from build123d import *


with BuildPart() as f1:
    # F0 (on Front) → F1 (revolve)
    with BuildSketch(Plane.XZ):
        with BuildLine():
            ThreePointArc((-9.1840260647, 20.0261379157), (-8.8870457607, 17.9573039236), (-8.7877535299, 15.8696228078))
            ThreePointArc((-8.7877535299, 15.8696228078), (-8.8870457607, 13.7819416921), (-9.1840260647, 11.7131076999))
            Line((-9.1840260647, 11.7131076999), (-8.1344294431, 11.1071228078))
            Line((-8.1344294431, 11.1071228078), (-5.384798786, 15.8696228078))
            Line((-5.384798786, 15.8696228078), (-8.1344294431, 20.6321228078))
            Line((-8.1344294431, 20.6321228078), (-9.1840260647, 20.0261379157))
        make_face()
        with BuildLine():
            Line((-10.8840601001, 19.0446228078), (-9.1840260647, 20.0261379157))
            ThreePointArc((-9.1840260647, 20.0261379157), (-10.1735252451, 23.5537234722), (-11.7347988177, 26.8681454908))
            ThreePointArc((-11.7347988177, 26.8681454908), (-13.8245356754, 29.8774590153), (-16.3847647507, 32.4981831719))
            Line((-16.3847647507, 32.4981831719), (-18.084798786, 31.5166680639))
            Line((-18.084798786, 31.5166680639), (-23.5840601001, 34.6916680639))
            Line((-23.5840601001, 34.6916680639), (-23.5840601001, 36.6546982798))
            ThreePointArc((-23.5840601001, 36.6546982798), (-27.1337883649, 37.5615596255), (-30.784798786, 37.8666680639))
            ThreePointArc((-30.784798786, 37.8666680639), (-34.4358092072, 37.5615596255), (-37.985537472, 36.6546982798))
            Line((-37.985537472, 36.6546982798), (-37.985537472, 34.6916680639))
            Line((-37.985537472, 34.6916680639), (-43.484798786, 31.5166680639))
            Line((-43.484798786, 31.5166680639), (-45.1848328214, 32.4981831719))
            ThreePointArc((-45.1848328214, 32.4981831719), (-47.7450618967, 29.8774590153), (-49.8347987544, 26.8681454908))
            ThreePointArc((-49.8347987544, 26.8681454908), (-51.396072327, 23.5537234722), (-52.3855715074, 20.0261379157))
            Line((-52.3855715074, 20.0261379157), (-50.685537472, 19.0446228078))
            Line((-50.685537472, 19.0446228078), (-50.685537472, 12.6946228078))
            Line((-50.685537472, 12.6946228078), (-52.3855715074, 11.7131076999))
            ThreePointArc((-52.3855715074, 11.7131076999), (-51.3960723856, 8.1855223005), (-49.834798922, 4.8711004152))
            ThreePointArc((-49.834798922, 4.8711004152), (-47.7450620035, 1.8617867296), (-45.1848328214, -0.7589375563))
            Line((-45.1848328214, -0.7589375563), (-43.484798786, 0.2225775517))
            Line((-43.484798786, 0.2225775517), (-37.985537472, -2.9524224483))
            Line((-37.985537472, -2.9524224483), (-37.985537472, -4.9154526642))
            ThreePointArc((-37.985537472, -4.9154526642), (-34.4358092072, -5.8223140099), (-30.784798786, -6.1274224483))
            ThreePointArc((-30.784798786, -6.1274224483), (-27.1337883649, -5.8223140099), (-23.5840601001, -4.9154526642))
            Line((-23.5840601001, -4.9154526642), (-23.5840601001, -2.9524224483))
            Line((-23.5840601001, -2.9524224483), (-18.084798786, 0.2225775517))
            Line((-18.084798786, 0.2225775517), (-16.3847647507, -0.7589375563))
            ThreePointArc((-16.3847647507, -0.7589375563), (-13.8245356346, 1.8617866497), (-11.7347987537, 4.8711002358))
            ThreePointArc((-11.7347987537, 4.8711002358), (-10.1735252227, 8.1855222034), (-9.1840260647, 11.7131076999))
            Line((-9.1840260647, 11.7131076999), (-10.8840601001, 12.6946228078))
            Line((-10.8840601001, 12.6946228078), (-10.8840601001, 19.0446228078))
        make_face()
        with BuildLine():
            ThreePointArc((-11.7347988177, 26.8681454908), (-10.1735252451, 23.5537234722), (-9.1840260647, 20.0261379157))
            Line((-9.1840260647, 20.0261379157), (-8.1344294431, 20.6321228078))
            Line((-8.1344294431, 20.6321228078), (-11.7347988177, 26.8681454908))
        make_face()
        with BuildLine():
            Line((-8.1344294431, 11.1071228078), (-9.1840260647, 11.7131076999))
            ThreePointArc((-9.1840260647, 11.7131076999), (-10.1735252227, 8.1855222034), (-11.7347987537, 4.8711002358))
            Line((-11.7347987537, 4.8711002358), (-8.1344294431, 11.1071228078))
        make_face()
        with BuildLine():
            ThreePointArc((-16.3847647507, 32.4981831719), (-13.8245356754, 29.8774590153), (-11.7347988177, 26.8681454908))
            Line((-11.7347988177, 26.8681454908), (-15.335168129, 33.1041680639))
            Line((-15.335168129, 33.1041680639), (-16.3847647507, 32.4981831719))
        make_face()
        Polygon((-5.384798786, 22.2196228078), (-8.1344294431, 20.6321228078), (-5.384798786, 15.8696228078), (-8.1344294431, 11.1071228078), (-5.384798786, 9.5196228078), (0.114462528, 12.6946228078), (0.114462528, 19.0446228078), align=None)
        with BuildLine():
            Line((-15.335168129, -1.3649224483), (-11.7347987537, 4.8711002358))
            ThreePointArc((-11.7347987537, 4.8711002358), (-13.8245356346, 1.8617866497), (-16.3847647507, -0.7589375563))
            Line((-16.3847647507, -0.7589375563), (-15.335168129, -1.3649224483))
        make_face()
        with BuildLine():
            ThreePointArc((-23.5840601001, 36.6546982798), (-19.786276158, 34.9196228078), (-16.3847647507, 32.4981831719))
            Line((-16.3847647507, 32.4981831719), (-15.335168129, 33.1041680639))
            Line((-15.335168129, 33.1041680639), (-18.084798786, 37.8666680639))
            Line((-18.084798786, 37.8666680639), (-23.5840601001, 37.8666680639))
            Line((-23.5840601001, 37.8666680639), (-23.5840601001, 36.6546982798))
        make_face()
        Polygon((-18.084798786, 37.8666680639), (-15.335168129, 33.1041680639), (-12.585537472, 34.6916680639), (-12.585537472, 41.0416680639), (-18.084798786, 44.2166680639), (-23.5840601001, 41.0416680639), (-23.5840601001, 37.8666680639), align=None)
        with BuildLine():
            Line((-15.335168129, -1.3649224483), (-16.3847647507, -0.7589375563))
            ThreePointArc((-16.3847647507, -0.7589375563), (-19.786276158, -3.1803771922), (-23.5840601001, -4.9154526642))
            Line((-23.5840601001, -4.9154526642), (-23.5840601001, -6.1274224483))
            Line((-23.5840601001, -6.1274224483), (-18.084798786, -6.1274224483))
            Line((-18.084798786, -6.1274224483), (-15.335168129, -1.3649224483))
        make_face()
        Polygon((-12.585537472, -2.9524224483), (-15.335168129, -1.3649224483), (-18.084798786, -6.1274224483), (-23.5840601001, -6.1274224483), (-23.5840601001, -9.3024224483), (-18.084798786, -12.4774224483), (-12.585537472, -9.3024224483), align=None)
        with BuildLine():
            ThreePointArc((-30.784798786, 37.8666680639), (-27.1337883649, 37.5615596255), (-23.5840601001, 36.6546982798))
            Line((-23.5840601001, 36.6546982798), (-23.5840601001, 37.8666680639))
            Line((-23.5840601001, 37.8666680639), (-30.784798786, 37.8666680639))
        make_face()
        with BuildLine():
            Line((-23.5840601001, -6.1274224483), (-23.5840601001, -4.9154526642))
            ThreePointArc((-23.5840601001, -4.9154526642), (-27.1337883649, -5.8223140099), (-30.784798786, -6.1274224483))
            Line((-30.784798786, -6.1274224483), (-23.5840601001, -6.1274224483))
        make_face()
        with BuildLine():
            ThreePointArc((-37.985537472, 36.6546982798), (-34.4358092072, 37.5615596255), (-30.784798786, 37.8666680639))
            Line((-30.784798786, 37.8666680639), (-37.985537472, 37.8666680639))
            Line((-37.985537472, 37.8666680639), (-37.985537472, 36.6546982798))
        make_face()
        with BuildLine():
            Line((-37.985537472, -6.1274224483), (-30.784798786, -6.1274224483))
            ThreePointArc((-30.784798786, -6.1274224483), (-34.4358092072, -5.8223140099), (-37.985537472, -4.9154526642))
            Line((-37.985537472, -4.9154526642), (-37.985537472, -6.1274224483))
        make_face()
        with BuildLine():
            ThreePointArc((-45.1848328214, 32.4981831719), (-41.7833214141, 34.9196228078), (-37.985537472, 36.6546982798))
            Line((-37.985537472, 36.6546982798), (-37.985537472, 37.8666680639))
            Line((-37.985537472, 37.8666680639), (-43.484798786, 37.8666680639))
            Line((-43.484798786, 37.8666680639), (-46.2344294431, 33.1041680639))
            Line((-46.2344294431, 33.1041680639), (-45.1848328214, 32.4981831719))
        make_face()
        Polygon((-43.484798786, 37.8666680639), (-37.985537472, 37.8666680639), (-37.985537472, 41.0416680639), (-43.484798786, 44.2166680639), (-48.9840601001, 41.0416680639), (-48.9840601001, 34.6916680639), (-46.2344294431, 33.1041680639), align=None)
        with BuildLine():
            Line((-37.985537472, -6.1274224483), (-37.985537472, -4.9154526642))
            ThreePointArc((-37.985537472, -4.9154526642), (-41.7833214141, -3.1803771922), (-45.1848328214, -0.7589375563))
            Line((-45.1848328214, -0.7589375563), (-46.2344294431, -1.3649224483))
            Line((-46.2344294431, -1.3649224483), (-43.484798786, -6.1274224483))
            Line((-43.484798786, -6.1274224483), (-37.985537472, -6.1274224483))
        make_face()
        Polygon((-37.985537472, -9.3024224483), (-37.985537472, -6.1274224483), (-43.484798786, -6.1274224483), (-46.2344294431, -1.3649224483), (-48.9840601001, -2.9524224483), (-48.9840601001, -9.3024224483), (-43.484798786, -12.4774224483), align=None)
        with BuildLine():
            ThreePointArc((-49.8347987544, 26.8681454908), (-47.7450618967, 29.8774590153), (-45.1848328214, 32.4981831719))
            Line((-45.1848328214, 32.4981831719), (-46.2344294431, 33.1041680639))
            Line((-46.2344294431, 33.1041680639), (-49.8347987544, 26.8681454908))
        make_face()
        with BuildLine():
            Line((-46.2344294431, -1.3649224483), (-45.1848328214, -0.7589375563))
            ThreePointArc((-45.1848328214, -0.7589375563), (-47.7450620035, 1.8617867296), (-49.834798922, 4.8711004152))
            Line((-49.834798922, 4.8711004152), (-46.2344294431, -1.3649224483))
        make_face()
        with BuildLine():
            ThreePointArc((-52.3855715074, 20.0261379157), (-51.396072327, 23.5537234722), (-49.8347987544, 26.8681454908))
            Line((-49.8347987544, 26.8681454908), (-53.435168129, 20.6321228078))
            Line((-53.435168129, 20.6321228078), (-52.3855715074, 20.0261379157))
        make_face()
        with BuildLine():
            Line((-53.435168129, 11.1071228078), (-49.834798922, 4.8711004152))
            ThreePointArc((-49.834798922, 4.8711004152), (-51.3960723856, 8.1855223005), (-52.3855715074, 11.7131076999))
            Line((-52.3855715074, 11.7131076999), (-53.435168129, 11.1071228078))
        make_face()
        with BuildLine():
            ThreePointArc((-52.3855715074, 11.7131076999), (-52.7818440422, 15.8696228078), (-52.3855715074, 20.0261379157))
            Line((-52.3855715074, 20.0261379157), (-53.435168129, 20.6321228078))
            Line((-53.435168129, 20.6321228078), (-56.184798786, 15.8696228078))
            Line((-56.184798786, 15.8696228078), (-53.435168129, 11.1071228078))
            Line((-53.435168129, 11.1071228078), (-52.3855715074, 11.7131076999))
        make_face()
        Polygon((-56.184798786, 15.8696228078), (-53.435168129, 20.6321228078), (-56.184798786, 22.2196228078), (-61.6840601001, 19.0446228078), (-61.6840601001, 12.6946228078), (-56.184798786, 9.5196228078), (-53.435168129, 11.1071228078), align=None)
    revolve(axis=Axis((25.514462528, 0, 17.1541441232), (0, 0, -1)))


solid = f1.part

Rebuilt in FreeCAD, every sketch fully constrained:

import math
import FreeCAD as App
import Part
import Sketcher
from FreeCAD import Vector
Q = App.Units.Quantity

doc = App.newDocument("Part")
body = doc.addObject("PartDesign::Body", "Body")

# Sketch on XZ plane
sketch1 = body.newObject("Sketcher::SketchObject", "Sketch")
sketch1.AttachmentSupport = (doc.getObject("XZ_Plane"), [""])
sketch1.MapMode = "FlatFace"
sketch1.addGeometry([
    Part.LineSegment(Vector(-49.834799, 4.8711, 0), Vector(-46.234429, -1.364922, 0)),  # 0
    Part.LineSegment(Vector(-46.234429, -1.364922, 0), Vector(-48.98406, -2.952422, 0)),  # 1
    Part.LineSegment(Vector(-48.98406, -2.952422, 0), Vector(-48.98406, -9.302422, 0)),  # 2
    Part.LineSegment(Vector(-48.98406, -9.302422, 0), Vector(-43.484799, -12.477422, 0)),  # 3
    Part.LineSegment(Vector(-43.484799, -12.477422, 0), Vector(-37.985537, -9.302422, 0)),  # 4
    Part.LineSegment(Vector(-37.985537, -9.302422, 0), Vector(-37.985537, -6.127422, 0)),  # 5
    Part.LineSegment(Vector(-37.985537, -6.127422, 0), Vector(-23.58406, -6.127422, 0)),  # 6
    Part.LineSegment(Vector(-23.58406, -6.127422, 0), Vector(-23.58406, -9.302422, 0)),  # 7
    Part.LineSegment(Vector(-23.58406, -9.302422, 0), Vector(-18.084799, -12.477422, 0)),  # 8
    Part.LineSegment(Vector(-18.084799, -12.477422, 0), Vector(-12.585537, -9.302422, 0)),  # 9
    Part.LineSegment(Vector(-12.585537, -9.302422, 0), Vector(-12.585537, -2.952422, 0)),  # 10
    Part.LineSegment(Vector(-12.585537, -2.952422, 0), Vector(-15.335168, -1.364922, 0)),  # 11
    Part.LineSegment(Vector(-15.335168, -1.364922, 0), Vector(-11.734799, 4.8711, 0)),  # 12
    Part.LineSegment(Vector(-11.734799, 4.8711, 0), Vector(-8.134429, 11.107123, 0)),  # 13
    Part.LineSegment(Vector(-8.134429, 11.107123, 0), Vector(-5.384799, 9.519623, 0)),  # 14
    Part.LineSegment(Vector(-5.384799, 9.519623, 0), Vector(0.114463, 12.694623, 0)),  # 15
    Part.LineSegment(Vector(0.114463, 12.694623, 0), Vector(0.114463, 19.044623, 0)),  # 16
    Part.LineSegment(Vector(0.114463, 19.044623, 0), Vector(-5.384799, 22.219623, 0)),  # 17
    Part.LineSegment(Vector(-5.384799, 22.219623, 0), Vector(-8.134429, 20.632123, 0)),  # 18
    Part.LineSegment(Vector(-8.134429, 20.632123, 0), Vector(-11.734799, 26.868145, 0)),  # 19
    Part.LineSegment(Vector(-11.734799, 26.868145, 0), Vector(-15.335168, 33.104168, 0)),  # 20
    Part.LineSegment(Vector(-15.335168, 33.104168, 0), Vector(-12.585537, 34.691668, 0)),  # 21
    Part.LineSegment(Vector(-12.585537, 34.691668, 0), Vector(-12.585537, 41.041668, 0)),  # 22
    Part.LineSegment(Vector(-12.585537, 41.041668, 0), Vector(-18.084799, 44.216668, 0)),  # 23
    Part.LineSegment(Vector(-18.084799, 44.216668, 0), Vector(-23.58406, 41.041668, 0)),  # 24
    Part.LineSegment(Vector(-23.58406, 41.041668, 0), Vector(-23.58406, 37.866668, 0)),  # 25
    Part.LineSegment(Vector(-23.58406, 37.866668, 0), Vector(-37.985537, 37.866668, 0)),  # 26
    Part.LineSegment(Vector(-37.985537, 37.866668, 0), Vector(-37.985537, 41.041668, 0)),  # 27
    Part.LineSegment(Vector(-37.985537, 41.041668, 0), Vector(-43.484799, 44.216668, 0)),  # 28
    Part.LineSegment(Vector(-43.484799, 44.216668, 0), Vector(-48.98406, 41.041668, 0)),  # 29
    Part.LineSegment(Vector(-48.98406, 41.041668, 0), Vector(-48.98406, 34.691668, 0)),  # 30
    Part.LineSegment(Vector(-48.98406, 34.691668, 0), Vector(-46.234429, 33.104168, 0)),  # 31
    Part.LineSegment(Vector(-46.234429, 33.104168, 0), Vector(-49.834799, 26.868145, 0)),  # 32
    Part.LineSegment(Vector(-49.834799, 26.868145, 0), Vector(-53.435168, 20.632123, 0)),  # 33
    Part.LineSegment(Vector(-53.435168, 20.632123, 0), Vector(-56.184799, 22.219623, 0)),  # 34
    Part.LineSegment(Vector(-56.184799, 22.219623, 0), Vector(-61.68406, 19.044623, 0)),  # 35
    Part.LineSegment(Vector(-61.68406, 19.044623, 0), Vector(-61.68406, 12.694623, 0)),  # 36
    Part.LineSegment(Vector(-61.68406, 12.694623, 0), Vector(-56.184799, 9.519623, 0)),  # 37
    Part.LineSegment(Vector(-56.184799, 9.519623, 0), Vector(-53.435168, 11.107123, 0)),  # 38
    Part.LineSegment(Vector(-53.435168, 11.107123, 0), Vector(-49.834799, 4.8711, 0)),  # 39
    Part.LineSegment(Vector(-52.385572, 20.026138, 0), Vector(-50.685537, 19.044623, 0)),  # 40
    Part.LineSegment(Vector(-50.685537, 19.044623, 0), Vector(-50.685537, 12.694623, 0)),  # 41
    Part.LineSegment(Vector(-50.685537, 12.694623, 0), Vector(-52.385572, 11.713108, 0)),  # 42
    Part.ArcOfCircle(Part.Circle(Vector(-30.784799, 15.869623, 0), Vector(0, 0, 1), 21.997045), math.radians(169.108026), math.radians(190.891974)),  # 43
    Part.ArcOfCircle(Part.Circle(Vector(-30.784799, 15.869623, 0), Vector(0, 0, 1), 21.997045), math.radians(-130.891974), math.radians(-109.108026)),  # 44
    Part.LineSegment(Vector(-45.184833, -0.758938, 0), Vector(-43.484799, 0.222578, 0)),  # 45
    Part.LineSegment(Vector(-43.484799, 0.222578, 0), Vector(-37.985537, -2.952422, 0)),  # 46
    Part.LineSegment(Vector(-37.985537, -2.952422, 0), Vector(-37.985537, -4.915453, 0)),  # 47
    Part.ArcOfCircle(Part.Circle(Vector(-30.784799, 15.869623, 0), Vector(0, 0, 1), 21.997045), math.radians(-70.891974), math.radians(-49.108026)),  # 48
    Part.LineSegment(Vector(-23.58406, -4.915453, 0), Vector(-23.58406, -2.952422, 0)),  # 49
    Part.LineSegment(Vector(-23.58406, -2.952422, 0), Vector(-18.084799, 0.222578, 0)),  # 50
    Part.LineSegment(Vector(-18.084799, 0.222578, 0), Vector(-16.384765, -0.758938, 0)),  # 51
    Part.LineSegment(Vector(-43.484799, 31.516668, 0), Vector(-45.184833, 32.498183, 0)),  # 52
    Part.ArcOfCircle(Part.Circle(Vector(-30.784799, 15.869623, 0), Vector(0, 0, 1), 21.997045), math.radians(109.108026), math.radians(130.891974)),  # 53
    Part.LineSegment(Vector(-37.985537, 36.654698, 0), Vector(-37.985537, 34.691668, 0)),  # 54
    Part.LineSegment(Vector(-37.985537, 34.691668, 0), Vector(-43.484799, 31.516668, 0)),  # 55
    Part.ArcOfCircle(Part.Circle(Vector(-30.784799, 15.869623, 0), Vector(0, 0, 1), 21.997045), math.radians(-10.891974), math.radians(0)),  # 56
    Part.LineSegment(Vector(-9.184026, 11.713108, 0), Vector(-10.88406, 12.694623, 0)),  # 57
    Part.LineSegment(Vector(-10.88406, 12.694623, 0), Vector(-10.88406, 19.044623, 0)),  # 58
    Part.LineSegment(Vector(-10.88406, 19.044623, 0), Vector(-9.184026, 20.026138, 0)),  # 59
    Part.ArcOfCircle(Part.Circle(Vector(-30.784799, 15.869623, 0), Vector(0, 0, 1), 21.997045), math.radians(0), math.radians(10.891974)),  # 60
    Part.LineSegment(Vector(-23.58406, 34.691668, 0), Vector(-23.58406, 36.654698, 0)),  # 61
    Part.ArcOfCircle(Part.Circle(Vector(-30.784799, 15.869623, 0), Vector(0, 0, 1), 21.997045), math.radians(49.108026), math.radians(70.891974)),  # 62
    Part.LineSegment(Vector(-16.384765, 32.498183, 0), Vector(-18.084799, 31.516668, 0)),  # 63
    Part.LineSegment(Vector(-18.084799, 31.516668, 0), Vector(-23.58406, 34.691668, 0)),  # 64
], False)
sketch1.addGeometry(Part.LineSegment(Vector(25.514463, 44.216668, 0), Vector(25.514463, -12.477422, 0)), True)  # axis
sketch1.addConstraint([
    Sketcher.Constraint("Coincident", 0, 2, 1, 1),
    Sketcher.Constraint("Coincident", 1, 2, 2, 1),
    Sketcher.Constraint("Coincident", 2, 2, 3, 1),
    Sketcher.Constraint("Coincident", 3, 2, 4, 1),
    Sketcher.Constraint("Coincident", 4, 2, 5, 1),
    Sketcher.Constraint("Coincident", 5, 2, 6, 1),
    Sketcher.Constraint("Coincident", 6, 2, 7, 1),
    Sketcher.Constraint("Coincident", 7, 2, 8, 1),
    Sketcher.Constraint("Coincident", 8, 2, 9, 1),
    Sketcher.Constraint("Coincident", 9, 2, 10, 1),
    Sketcher.Constraint("Coincident", 10, 2, 11, 1),
    Sketcher.Constraint("Coincident", 11, 2, 12, 1),
    Sketcher.Constraint("Coincident", 12, 2, 13, 1),
    Sketcher.Constraint("Coincident", 13, 2, 14, 1),
    Sketcher.Constraint("Coincident", 14, 2, 15, 1),
    Sketcher.Constraint("Coincident", 15, 2, 16, 1),
    Sketcher.Constraint("Coincident", 16, 2, 17, 1),
    Sketcher.Constraint("Coincident", 17, 2, 18, 1),
    Sketcher.Constraint("Coincident", 18, 2, 19, 1),
    Sketcher.Constraint("Coincident", 19, 2, 20, 1),
    Sketcher.Constraint("Coincident", 20, 2, 21, 1),
    Sketcher.Constraint("Coincident", 21, 2, 22, 1),
    Sketcher.Constraint("Coincident", 22, 2, 23, 1),
    Sketcher.Constraint("Coincident", 23, 2, 24, 1),
    Sketcher.Constraint("Coincident", 24, 2, 25, 1),
    Sketcher.Constraint("Coincident", 25, 2, 26, 1),
    Sketcher.Constraint("Coincident", 26, 2, 27, 1),
    Sketcher.Constraint("Coincident", 27, 2, 28, 1),
    Sketcher.Constraint("Coincident", 28, 2, 29, 1),
    Sketcher.Constraint("Coincident", 29, 2, 30, 1),
    Sketcher.Constraint("Coincident", 30, 2, 31, 1),
    Sketcher.Constraint("Coincident", 31, 2, 32, 1),
    Sketcher.Constraint("Coincident", 32, 2, 33, 1),
    Sketcher.Constraint("Coincident", 33, 2, 34, 1),
    Sketcher.Constraint("Coincident", 34, 2, 35, 1),
    Sketcher.Constraint("Coincident", 35, 2, 36, 1),
    Sketcher.Constraint("Coincident", 36, 2, 37, 1),
    Sketcher.Constraint("Coincident", 37, 2, 38, 1),
    Sketcher.Constraint("Coincident", 38, 2, 39, 1),
    Sketcher.Constraint("Coincident", 39, 2, 0, 1),
    Sketcher.Constraint("Coincident", 40, 2, 41, 1),
    Sketcher.Constraint("Coincident", 41, 2, 42, 1),
    Sketcher.Constraint("Coincident", 42, 2, 43, 2),
    Sketcher.Constraint("Coincident", 43, 1, 40, 1),
    Sketcher.Constraint("Coincident", 44, 1, 45, 1),
    Sketcher.Constraint("Coincident", 45, 2, 46, 1),
    Sketcher.Constraint("Coincident", 46, 2, 47, 1),
    Sketcher.Constraint("Coincident", 47, 2, 44, 2),
    Sketcher.Constraint("Coincident", 48, 1, 49, 1),
    Sketcher.Constraint("Coincident", 49, 2, 50, 1),
    Sketcher.Constraint("Coincident", 50, 2, 51, 1),
    Sketcher.Constraint("Coincident", 51, 2, 48, 2),
    Sketcher.Constraint("Coincident", 52, 2, 53, 2),
    Sketcher.Constraint("Coincident", 53, 1, 54, 1),
    Sketcher.Constraint("Coincident", 54, 2, 55, 1),
    Sketcher.Constraint("Coincident", 55, 2, 52, 1),
    Sketcher.Constraint("Coincident", 56, 1, 57, 1),
    Sketcher.Constraint("Coincident", 57, 2, 58, 1),
    Sketcher.Constraint("Coincident", 58, 2, 59, 1),
    Sketcher.Constraint("Coincident", 59, 2, 60, 2),
    Sketcher.Constraint("Tangent", 60, 1, 56, 2),
    Sketcher.Constraint("Coincident", 61, 2, 62, 2),
    Sketcher.Constraint("Coincident", 62, 1, 63, 1),
    Sketcher.Constraint("Coincident", 63, 2, 64, 1),
    Sketcher.Constraint("Coincident", 64, 2, 61, 1),
    Sketcher.Constraint("Vertical", 2),
    Sketcher.Constraint("Vertical", 5),
    Sketcher.Constraint("Horizontal", 6),
    Sketcher.Constraint("Vertical", 7),
    Sketcher.Constraint("Vertical", 10),
    Sketcher.Constraint("Vertical", 16),
    Sketcher.Constraint("Vertical", 22),
    Sketcher.Constraint("Vertical", 25),
    Sketcher.Constraint("Horizontal", 26),
    Sketcher.Constraint("Vertical", 27),
    Sketcher.Constraint("Vertical", 30),
    Sketcher.Constraint("Vertical", 36),
    Sketcher.Constraint("Vertical", 41),
    Sketcher.Constraint("Vertical", 47),
    Sketcher.Constraint("Vertical", 49),
    Sketcher.Constraint("Vertical", 54),
    Sketcher.Constraint("Vertical", 58),
    Sketcher.Constraint("Vertical", 61),
    Sketcher.Constraint("Vertical", 65),
    Sketcher.Constraint("Coincident", 44, 3, 43, 3),
    Sketcher.Constraint("Coincident", 48, 3, 43, 3),
    Sketcher.Constraint("Coincident", 53, 3, 43, 3),
    Sketcher.Constraint("Coincident", 56, 3, 43, 3),
    Sketcher.Constraint("Coincident", 62, 3, 43, 3),
    Sketcher.Constraint("Equal", 43, 44),
    Sketcher.Constraint("Equal", 44, 48),
    Sketcher.Constraint("Equal", 48, 53),
    Sketcher.Constraint("Equal", 53, 56),
    Sketcher.Constraint("Equal", 56, 60),
    Sketcher.Constraint("Equal", 60, 62),
    Sketcher.Constraint("Perpendicular", 0, 1),
    Sketcher.Constraint("Parallel", 1, 4),
    Sketcher.Constraint("Parallel", 3, 8),
    Sketcher.Constraint("Parallel", 4, 9),
    Sketcher.Constraint("Parallel", 8, 11),
    Sketcher.Constraint("Perpendicular", 11, 12),
    Sketcher.Constraint("Parallel", 12, 13),
    Sketcher.Constraint("Perpendicular", 13, 14),
    Sketcher.Constraint("Parallel", 9, 15),
    Sketcher.Constraint("Parallel", 14, 17),
    Sketcher.Constraint("Parallel", 15, 18),
    Sketcher.Constraint("Perpendicular", 18, 19),
    Sketcher.Constraint("Parallel", 19, 20),
    Sketcher.Constraint("Perpendicular", 20, 21),
    Sketcher.Constraint("Parallel", 17, 23),
    Sketcher.Constraint("Parallel", 21, 24),
    Sketcher.Constraint("Parallel", 23, 28),
    Sketcher.Constraint("Parallel", 24, 29),
    Sketcher.Constraint("Parallel", 28, 31),
    Sketcher.Constraint("Perpendicular", 31, 32),
    Sketcher.Constraint("Parallel", 32, 33),
    Sketcher.Constraint("Perpendicular", 33, 34),
    Sketcher.Constraint("Parallel", 29, 35),
    Sketcher.Constraint("Parallel", 34, 37),
    Sketcher.Constraint("Parallel", 35, 38),
    Sketcher.Constraint("Perpendicular", 38, 39),
    Sketcher.Constraint("Parallel", 37, 40),
    Sketcher.Constraint("Perpendicular", 39, 42),
    Sketcher.Constraint("Parallel", 42, 45),
    Sketcher.Constraint("Parallel", 40, 46),
    Sketcher.Constraint("Parallel", 45, 50),
    Sketcher.Constraint("Parallel", 46, 51),
    Sketcher.Constraint("Parallel", 51, 52),
    Sketcher.Constraint("Parallel", 50, 55),
    Sketcher.Constraint("Parallel", 52, 57),
    Sketcher.Constraint("Parallel", 55, 59),
    Sketcher.Constraint("Parallel", 59, 63),
    Sketcher.Constraint("Parallel", 57, 64),
    Sketcher.Constraint("Horizontal", 2, 2, 4, 2),
    Sketcher.Constraint("Horizontal", 4, 2, 7, 2),
    Sketcher.Constraint("Horizontal", 3, 2, 8, 2),
    Sketcher.Constraint("Horizontal", 7, 2, 9, 2),
    Sketcher.Constraint("Horizontal", 1, 2, 10, 2),
    Sketcher.Constraint("Horizontal", 0, 2, 11, 2),
    Sketcher.Constraint("Horizontal", 22, 2, 24, 2),
    Sketcher.Constraint("Horizontal", 24, 2, 27, 2),
    Sketcher.Constraint("Horizontal", 23, 2, 28, 2),
    Sketcher.Constraint("Horizontal", 27, 2, 29, 2),
    Sketcher.Constraint("Horizontal", 21, 2, 30, 2),
    Sketcher.Constraint("Horizontal", 20, 2, 31, 2),
    Sketcher.Constraint("Horizontal", 19, 2, 32, 2),
    Sketcher.Constraint("Horizontal", 18, 2, 33, 2),
    Sketcher.Constraint("Horizontal", 17, 2, 34, 2),
    Sketcher.Constraint("Horizontal", 16, 2, 35, 2),
    Sketcher.Constraint("Horizontal", 15, 2, 36, 2),
    Sketcher.Constraint("Horizontal", 14, 2, 37, 2),
    Sketcher.Constraint("Horizontal", 13, 2, 38, 2),
    Sketcher.Constraint("Horizontal", 12, 2, 39, 2),
    Sketcher.Constraint("Horizontal", 35, 2, 40, 2),
    Sketcher.Constraint("Horizontal", 36, 2, 41, 2),
    Sketcher.Constraint("Horizontal", 10, 2, 46, 2),
    Sketcher.Constraint("Horizontal", 47, 2, 48, 1),
    Sketcher.Constraint("Horizontal", 46, 2, 49, 2),
    Sketcher.Constraint("Horizontal", 45, 2, 50, 2),
    Sketcher.Constraint("Horizontal", 30, 2, 54, 2),
    Sketcher.Constraint("Horizontal", 42, 2, 56, 1),
    Sketcher.Constraint("Horizontal", 41, 2, 57, 2),
    Sketcher.Constraint("Horizontal", 40, 2, 58, 2),
    Sketcher.Constraint("Horizontal", 62, 3, 60, 1),
    Sketcher.Constraint("Horizontal", 53, 1, 61, 2),
    Sketcher.Constraint("Horizontal", 52, 2, 62, 1),
    Sketcher.Constraint("Horizontal", 55, 2, 63, 2),
    Sketcher.Constraint("Horizontal", 54, 2, 64, 2),
    Sketcher.Constraint("Horizontal", 28, 2, 65, 1),
    Sketcher.Constraint("Horizontal", 8, 2, 65, 2),
    Sketcher.Constraint("Vertical", 14, 2, 17, 2),
    Sketcher.Constraint("Vertical", 13, 2, 18, 2),
    Sketcher.Constraint("Vertical", 12, 2, 19, 2),
    Sketcher.Constraint("Vertical", 11, 2, 20, 2),
    Sketcher.Constraint("Vertical", 10, 2, 21, 2),
    Sketcher.Constraint("Vertical", 8, 2, 23, 2),
    Sketcher.Constraint("Vertical", 42, 2, 43, 1),
    Sketcher.Constraint("Vertical", 28, 2, 45, 2),
    Sketcher.Constraint("Vertical", 27, 2, 46, 2),
    Sketcher.Constraint("Vertical", 25, 2, 48, 1),
    Sketcher.Constraint("Vertical", 44, 1, 52, 2),
    Sketcher.Constraint("Vertical", 47, 2, 53, 1),
    Sketcher.Constraint("Equal", 10, 16),
    Sketcher.Constraint("Equal", 16, 22),
    Sketcher.Constraint("Equal", 7, 25),
    Sketcher.Constraint("Equal", 12, 13),
    Sketcher.Constraint("Equal", 11, 14),
    Sketcher.Constraint("Equal", 9, 15),
    Sketcher.Constraint("Equal", 42, 45),
    Sketcher.Constraint("Angle", 0, Q("-60 deg")),
    Sketcher.Constraint("DistanceY", 2, 2, 2, 1, Q("0.25 in")),
    Sketcher.Constraint("Distance", 3, Q("0.25 in")),
    Sketcher.Constraint("DistanceY", 5, 1, 5, 2, Q("0.125 in")),
    Sketcher.Constraint("Distance", 1, Q("0.125 in")),
    Sketcher.Constraint("DistanceX", 43, 3, -1, 1, Q("1.212 in")),
    Sketcher.Constraint("DistanceX", 3, 2, -1, 1, Q("1.712 in")),
    Sketcher.Constraint("DistanceX", 12, 2, -1, 1, Q("0.462 in")),
    Sketcher.Constraint("Radius", 43, 21.997045),
    Sketcher.Constraint("DistanceY", -1, 1, 12, 2, 4.8711),
    Sketcher.Constraint("DistanceX", -1, 1, 65, 1, 25.514463),
])
revolution = body.newObject("PartDesign::Revolution", "Revolution")
revolution.Profile = sketch1
revolution.ReferenceAxis = (sketch1, ["Axis0"])
revolution.Angle = 360

doc.recompute()
